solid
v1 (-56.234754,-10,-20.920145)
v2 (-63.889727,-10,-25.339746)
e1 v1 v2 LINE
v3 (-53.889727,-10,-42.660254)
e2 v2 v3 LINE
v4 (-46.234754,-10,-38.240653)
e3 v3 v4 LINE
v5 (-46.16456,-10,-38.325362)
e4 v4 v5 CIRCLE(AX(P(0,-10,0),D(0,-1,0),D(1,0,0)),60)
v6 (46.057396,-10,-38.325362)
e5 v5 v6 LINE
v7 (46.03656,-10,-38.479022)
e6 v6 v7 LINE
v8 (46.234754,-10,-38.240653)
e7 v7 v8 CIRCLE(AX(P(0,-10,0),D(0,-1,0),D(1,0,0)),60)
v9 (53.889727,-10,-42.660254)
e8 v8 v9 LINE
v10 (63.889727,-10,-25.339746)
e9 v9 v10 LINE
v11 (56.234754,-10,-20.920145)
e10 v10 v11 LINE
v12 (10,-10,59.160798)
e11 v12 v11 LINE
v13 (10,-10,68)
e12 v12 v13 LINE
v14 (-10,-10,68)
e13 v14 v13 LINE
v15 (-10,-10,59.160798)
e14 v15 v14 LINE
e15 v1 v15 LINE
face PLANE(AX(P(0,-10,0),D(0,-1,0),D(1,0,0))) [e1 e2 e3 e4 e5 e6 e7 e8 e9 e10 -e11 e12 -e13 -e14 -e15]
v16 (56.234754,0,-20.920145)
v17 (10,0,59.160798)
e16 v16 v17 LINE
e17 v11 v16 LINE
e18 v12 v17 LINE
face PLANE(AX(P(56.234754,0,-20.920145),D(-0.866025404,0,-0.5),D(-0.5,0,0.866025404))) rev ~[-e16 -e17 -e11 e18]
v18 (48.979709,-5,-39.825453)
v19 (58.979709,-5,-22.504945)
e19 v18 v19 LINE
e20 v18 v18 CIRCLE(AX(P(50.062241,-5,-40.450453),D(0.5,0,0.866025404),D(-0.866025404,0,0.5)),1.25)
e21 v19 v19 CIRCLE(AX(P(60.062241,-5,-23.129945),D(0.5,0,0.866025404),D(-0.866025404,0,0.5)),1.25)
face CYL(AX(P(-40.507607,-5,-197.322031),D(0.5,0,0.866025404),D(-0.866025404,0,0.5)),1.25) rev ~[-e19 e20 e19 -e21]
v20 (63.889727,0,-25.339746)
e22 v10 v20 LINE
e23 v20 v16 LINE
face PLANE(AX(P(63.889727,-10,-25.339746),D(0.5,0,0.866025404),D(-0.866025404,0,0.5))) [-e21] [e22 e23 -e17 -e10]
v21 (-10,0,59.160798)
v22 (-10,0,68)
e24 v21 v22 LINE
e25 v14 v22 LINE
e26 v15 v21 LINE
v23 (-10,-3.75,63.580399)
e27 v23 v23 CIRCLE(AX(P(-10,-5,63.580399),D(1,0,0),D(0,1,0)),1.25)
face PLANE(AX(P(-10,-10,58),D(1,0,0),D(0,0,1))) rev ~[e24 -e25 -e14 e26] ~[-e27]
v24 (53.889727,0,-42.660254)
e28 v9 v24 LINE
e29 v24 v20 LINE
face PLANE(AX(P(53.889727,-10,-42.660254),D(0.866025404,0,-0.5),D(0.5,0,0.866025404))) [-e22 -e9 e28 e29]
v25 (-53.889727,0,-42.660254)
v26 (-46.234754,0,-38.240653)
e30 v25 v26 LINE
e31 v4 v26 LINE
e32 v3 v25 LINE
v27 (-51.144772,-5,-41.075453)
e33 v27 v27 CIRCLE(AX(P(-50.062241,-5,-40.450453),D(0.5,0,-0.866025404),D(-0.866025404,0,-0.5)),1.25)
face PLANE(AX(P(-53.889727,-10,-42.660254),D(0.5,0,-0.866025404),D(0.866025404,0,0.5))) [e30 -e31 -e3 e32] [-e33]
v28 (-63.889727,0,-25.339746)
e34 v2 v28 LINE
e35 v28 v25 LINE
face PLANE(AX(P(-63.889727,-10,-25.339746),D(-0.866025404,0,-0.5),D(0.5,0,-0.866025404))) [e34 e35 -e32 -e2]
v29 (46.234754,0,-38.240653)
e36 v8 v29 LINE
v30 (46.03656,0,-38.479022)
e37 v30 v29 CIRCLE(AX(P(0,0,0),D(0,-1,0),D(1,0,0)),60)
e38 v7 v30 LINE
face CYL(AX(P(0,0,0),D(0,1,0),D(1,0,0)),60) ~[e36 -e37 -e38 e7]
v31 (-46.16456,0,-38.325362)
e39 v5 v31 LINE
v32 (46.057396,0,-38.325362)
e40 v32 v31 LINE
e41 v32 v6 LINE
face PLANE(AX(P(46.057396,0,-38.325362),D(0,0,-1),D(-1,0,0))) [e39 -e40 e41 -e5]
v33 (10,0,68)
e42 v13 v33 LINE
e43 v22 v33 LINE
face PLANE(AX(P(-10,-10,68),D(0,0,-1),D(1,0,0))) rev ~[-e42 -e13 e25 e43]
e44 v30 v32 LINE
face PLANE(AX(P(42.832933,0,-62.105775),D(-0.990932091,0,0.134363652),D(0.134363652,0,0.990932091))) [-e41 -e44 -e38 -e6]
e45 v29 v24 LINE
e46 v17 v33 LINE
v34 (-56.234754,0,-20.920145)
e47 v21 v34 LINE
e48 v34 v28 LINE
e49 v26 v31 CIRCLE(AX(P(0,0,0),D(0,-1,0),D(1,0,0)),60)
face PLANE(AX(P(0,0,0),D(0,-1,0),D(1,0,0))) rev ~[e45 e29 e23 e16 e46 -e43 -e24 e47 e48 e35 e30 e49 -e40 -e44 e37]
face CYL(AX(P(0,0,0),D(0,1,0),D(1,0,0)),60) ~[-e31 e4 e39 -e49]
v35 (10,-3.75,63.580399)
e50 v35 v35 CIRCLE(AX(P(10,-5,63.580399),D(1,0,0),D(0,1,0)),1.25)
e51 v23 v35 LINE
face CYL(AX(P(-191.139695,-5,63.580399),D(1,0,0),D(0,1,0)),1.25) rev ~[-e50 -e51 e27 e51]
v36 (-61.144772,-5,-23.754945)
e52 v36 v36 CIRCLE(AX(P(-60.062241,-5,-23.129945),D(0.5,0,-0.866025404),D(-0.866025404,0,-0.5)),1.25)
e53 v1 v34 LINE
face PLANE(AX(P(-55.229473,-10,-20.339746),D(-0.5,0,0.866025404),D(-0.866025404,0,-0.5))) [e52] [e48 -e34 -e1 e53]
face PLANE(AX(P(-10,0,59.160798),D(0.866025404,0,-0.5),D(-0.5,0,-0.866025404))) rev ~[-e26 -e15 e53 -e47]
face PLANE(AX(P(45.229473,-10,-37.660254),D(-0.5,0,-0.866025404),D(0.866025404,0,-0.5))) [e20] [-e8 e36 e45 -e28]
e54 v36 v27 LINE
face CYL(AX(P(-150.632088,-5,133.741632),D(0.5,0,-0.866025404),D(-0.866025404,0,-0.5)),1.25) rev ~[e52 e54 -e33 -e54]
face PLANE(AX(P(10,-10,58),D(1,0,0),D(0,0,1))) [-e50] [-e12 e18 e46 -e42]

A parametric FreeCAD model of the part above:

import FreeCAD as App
import Part
import Sketcher
Q = App.Units.Quantity

doc = App.newDocument("Part")
body = doc.addObject("PartDesign::Body", "Body")

# Sketch on XZ plane
sketch1 = body.newObject("Sketcher::SketchObject", "Sketch")
sketch1.AttachmentSupport = (doc.getObject("XZ_Plane"), [""])
sketch1.MapMode = "FlatFace"
sketch1.addGeometry(Part.Circle(App.Vector(0, 0, 0), App.Vector(0, 0, 1), 60), False)
sketch1.addConstraint([
    Sketcher.Constraint("Coincident", 0, 3, -1, 1),
    Sketcher.Constraint("Diameter", 0, Q("120 mm")),
])
pad1 = body.newObject("PartDesign::Pad", "Pad")
pad1.Profile = sketch1
pad1.Length = 10

# Sketch on XZ plane
sketch2 = body.newObject("Sketcher::SketchObject", "Sketch001")
sketch2.AttachmentSupport = (doc.getObject("XZ_Plane"), [""])
sketch2.MapMode = "FlatFace"
sketch2.AttachmentOffset = App.Placement(App.Vector(0, 0, 10), App.Rotation())
sketch2.addGeometry([
    Part.LineSegment(App.Vector(-10, 68, 0), App.Vector(-10, 58, 0)),  # 0
    Part.LineSegment(App.Vector(-10, 58, 0), App.Vector(10, 58, 0)),  # 1
    Part.LineSegment(App.Vector(10, 58, 0), App.Vector(10, 68, 0)),  # 2
    Part.LineSegment(App.Vector(10, 68, 0), App.Vector(-10, 68, 0)),  # 3
    Part.LineSegment(App.Vector(-54, -43, 0), App.Vector(-45, -38, 0)),  # 4
    Part.LineSegment(App.Vector(-45, -38, 0), App.Vector(-55, -20, 0)),  # 5
    Part.LineSegment(App.Vector(-55, -20, 0), App.Vector(-64, -25, 0)),  # 6
    Part.LineSegment(App.Vector(-64, -25, 0), App.Vector(-54, -43, 0)),  # 7
    Part.LineSegment(App.Vector(64, -25, 0), App.Vector(55, -20, 0)),  # 8
    Part.LineSegment(App.Vector(55, -20, 0), App.Vector(45, -38, 0)),  # 9
    Part.LineSegment(App.Vector(45, -38, 0), App.Vector(54, -43, 0)),  # 10
    Part.LineSegment(App.Vector(54, -43, 0), App.Vector(64, -25, 0)),  # 11
], False)
sketch2.addConstraint([
    Sketcher.Constraint("Coincident", 0, 2, 1, 1),
    Sketcher.Constraint("Coincident", 1, 2, 2, 1),
    Sketcher.Constraint("Coincident", 2, 2, 3, 1),
    Sketcher.Constraint("Coincident", 3, 2, 0, 1),
    Sketcher.Constraint("Coincident", 4, 2, 5, 1),
    Sketcher.Constraint("Coincident", 5, 2, 6, 1),
    Sketcher.Constraint("Coincident", 6, 2, 7, 1),
    Sketcher.Constraint("Coincident", 7, 2, 4, 1),
    Sketcher.Constraint("Coincident", 8, 2, 9, 1),
    Sketcher.Constraint("Coincident", 9, 2, 10, 1),
    Sketcher.Constraint("Coincident", 10, 2, 11, 1),
    Sketcher.Constraint("Coincident", 11, 2, 8, 1),
    Sketcher.Constraint("Vertical", 0),
    Sketcher.Constraint("Horizontal", 1),
    Sketcher.Constraint("Vertical", 2),
    Sketcher.Constraint("Horizontal", 3),
    Sketcher.Constraint("Symmetric", 5, 2, 8, 2, -2),
    Sketcher.Constraint("Symmetric", 4, 2, 9, 2, -2),
    Sketcher.Constraint("Symmetric", 7, 2, 10, 2, -2),
    Sketcher.Constraint("Symmetric", 6, 2, 11, 2, -2),
    Sketcher.Constraint("Perpendicular", 4, 5),
    Sketcher.Constraint("Perpendicular", 5, 6),
    Sketcher.Constraint("Perpendicular", 6, 7),
    Sketcher.Constraint("DistanceX", 1, 1, 1, 2, Q("20 mm")),
    Sketcher.Constraint("DistanceY", 0, 2, 0, 1, Q("10 mm")),
    Sketcher.Constraint("Angle", 4, Q("30 deg")),
    Sketcher.Constraint("Distance", 4, Q("10 mm")),
    Sketcher.Constraint("Distance", 5, Q("20 mm")),
    Sketcher.Constraint("DistanceX", 0, 2, -1, 1, Q("10 mm")),
    Sketcher.Constraint("DistanceY", -1, 1, 0, 2, Q("58 mm")),
    Sketcher.Constraint("DistanceX", 7, 2, 9, 2, Q("99.119201 mm")),
    Sketcher.Constraint("DistanceY", 4, 2, -1, 1, Q("37.660254 mm")),
])
pad2 = body.newObject("PartDesign::Pad", "Pad001")
pad2.Profile = sketch2
pad2.Length = 10
pad2.Reversed = True

# Sketch on YZ plane
sketch3 = body.newObject("Sketcher::SketchObject", "Sketch002")
sketch3.AttachmentSupport = (doc.getObject("YZ_Plane"), [""])
sketch3.MapMode = "FlatFace"
sketch3.AttachmentOffset = App.Placement(App.Vector(0, 0, -10), App.Rotation())
sketch3.addGeometry(Part.Circle(App.Vector(-5, 63.6, 0), App.Vector(0, 0, 1), 1.2), False)
sketch3.addConstraint([
    Sketcher.Constraint("Diameter", 0, Q("2.5 mm")),
    Sketcher.Constraint("DistanceX", 0, 3, -1, 1, Q("5 mm")),
    Sketcher.Constraint("DistanceY", -1, 1, 0, 3, Q("63.580399 mm")),
])
doc.recompute()
hole = body.newObject("PartDesign::Hole", "Hole")
hole.Profile = sketch3
hole.ThreadType = "None"
hole.Diameter = 2.5
hole.DepthType = "ThroughAll"
hole.Reversed = True

# Sketch on an angled plane
sketch4 = body.newObject("Sketcher::SketchObject", "Sketch003")
sketch4.Placement = App.Placement(App.Vector(-5, 0, 8.660254), App.Rotation(App.Vector(0.866025404, 0, 0.5), App.Vector(0, 1, 0), App.Vector(-0.5, 0, 0.866025404), "ZXY"))
sketch4.addGeometry(Part.Circle(App.Vector(-63.6, -5, 0), App.Vector(0, 0, 1), 1.2), False)
sketch4.addConstraint([
    Sketcher.Constraint("Diameter", 0, Q("2.5 mm")),
    Sketcher.Constraint("DistanceY", 0, 3, -1, 1, Q("5 mm")),
    Sketcher.Constraint("DistanceX", 0, 3, -1, 1, Q("63.580399 mm")),
])
doc.recompute()
hole2 = body.newObject("PartDesign::Hole", "Hole001")
hole2.Profile = sketch4
hole2.ThreadType = "None"
hole2.Diameter = 2.5
hole2.DepthType = "ThroughAll"

# Sketch on an angled plane
sketch5 = body.newObject("Sketcher::SketchObject", "Sketch004")
sketch5.Placement = App.Placement(App.Vector(-5, 0, -8.660254), App.Rotation(App.Vector(0.866025404, 0, -0.5), App.Vector(0, -1, 0), App.Vector(-0.5, 0, -0.866025404), "ZXY"))
sketch5.addGeometry(Part.Circle(App.Vector(63.6, 5, 0), App.Vector(0, 0, 1), 1.2), False)
sketch5.addConstraint([
    Sketcher.Constraint("Diameter", 0, Q("2.5 mm")),
    Sketcher.Constraint("DistanceY", -1, 1, 0, 3, Q("5 mm")),
    Sketcher.Constraint("DistanceX", -1, 1, 0, 3, Q("63.580399 mm")),
])
doc.recompute()
hole3 = body.newObject("PartDesign::Hole", "Hole002")
hole3.Profile = sketch5
hole3.ThreadType = "None"
hole3.Diameter = 2.5
hole3.DepthType = "ThroughAll"

# Sketch on XZ plane
sketch6 = body.newObject("Sketcher::SketchObject", "Sketch005")
sketch6.AttachmentSupport = (doc.getObject("XZ_Plane"), [""])
sketch6.MapMode = "FlatFace"
sketch6.addGeometry([
    Part.LineSegment(App.Vector(46, -38, 0), App.Vector(-46, -38, 0)),
    Part.LineSegment(App.Vector(-46, -38, 0), App.Vector(-48, -60, 0)),
    Part.LineSegment(App.Vector(-48, -60, 0), App.Vector(43, -62, 0)),
    Part.LineSegment(App.Vector(43, -62, 0), App.Vector(46, -38, 0)),
], False)
sketch6.addConstraint([
    Sketcher.Constraint("Coincident", 0, 2, 1, 1),
    Sketcher.Constraint("Coincident", 1, 2, 2, 1),
    Sketcher.Constraint("Coincident", 2, 2, 3, 1),
    Sketcher.Constraint("Coincident", 3, 2, 0, 1),
    Sketcher.Constraint("Horizontal", 0),
    Sketcher.Constraint("DistanceX", 0, 2, 0, 1, Q("92.261501 mm")),
    Sketcher.Constraint("Distance", 2, Q("90.70235 mm")),
    Sketcher.Constraint("DistanceY", 0, 2, -1, 1, Q("38.325362 mm")),
    Sketcher.Constraint("DistanceX", 1, 2, 0, 2, Q("1.650982 mm")),
    Sketcher.Constraint("DistanceY", 1, 2, 0, 2, Q("22.168182 mm")),
    Sketcher.Constraint("DistanceX", 1, 2, 2, 2, Q("90.68802 mm")),
    Sketcher.Constraint("DistanceX", 0, 2, -1, 1, Q("46.204105 mm")),
])
pocket1 = body.newObject("PartDesign::Pocket", "Pocket")
pocket1.Profile = sketch6
pocket1.Type = "ThroughAll"
pocket1.Reversed = True

# Sketch on XZ plane
sketch7 = body.newObject("Sketcher::SketchObject", "Sketch006")
sketch7.AttachmentSupport = (doc.getObject("XZ_Plane"), [""])
sketch7.MapMode = "FlatFace"
sketch7.addGeometry([
    Part.LineSegment(App.Vector(-10, 59, 0), App.Vector(-56, -21, 0)),  # 0
    Part.LineSegment(App.Vector(-56, -21, 0), App.Vector(-84, -10, 0)),  # 1
    Part.LineSegment(App.Vector(-84, -10, 0), App.Vector(-39, 80, 0)),  # 2
    Part.LineSegment(App.Vector(-39, 80, 0), App.Vector(-10, 59, 0)),  # 3
    Part.LineSegment(App.Vector(56, -21, 0), App.Vector(10, 59, 0)),  # 4
    Part.LineSegment(App.Vector(10, 59, 0), App.Vector(43, 72, 0)),  # 5
    Part.LineSegment(App.Vector(43, 72, 0), App.Vector(87, -3, 0)),  # 6
    Part.LineSegment(App.Vector(87, -3, 0), App.Vector(56, -21, 0)),  # 7
], False)
sketch7.addConstraint([
    Sketcher.Constraint("Coincident", 0, 2, 1, 1),
    Sketcher.Constraint("Coincident", 1, 2, 2, 1),
    Sketcher.Constraint("Coincident", 2, 2, 3, 1),
    Sketcher.Constraint("Coincident", 3, 2, 0, 1),
    Sketcher.Constraint("Coincident", 4, 2, 5, 1),
    Sketcher.Constraint("Coincident", 5, 2, 6, 1),
    Sketcher.Constraint("Coincident", 6, 2, 7, 1),
    Sketcher.Constraint("Coincident", 7, 2, 4, 1),
    Sketcher.Constraint("Symmetric", 3, 2, 4, 2, -2),
    Sketcher.Constraint("Symmetric", 0, 2, 7, 2, -2),
    Sketcher.Constraint("Parallel", 4, 6),
    Sketcher.Constraint("Perpendicular", 6, 7),
    Sketcher.Constraint("Angle", 0, Q("-120 deg")),
    Sketcher.Constraint("DistanceX", 3, 2, -1, 1, Q("10 mm")),
    Sketcher.Constraint("Distance", 2, Q("100.7483 mm")),
    Sketcher.Constraint("DistanceX", -1, 1, 6, 2, Q("86.6775 mm")),
    Sketcher.Constraint("DistanceX", 1, 2, -1, 1, Q("84.36019 mm")),
    Sketcher.Constraint("DistanceX", 2, 2, -1, 1, Q("39.304182 mm")),
    Sketcher.Constraint("DistanceY", 0, 2, 1, 2, Q("11.301672 mm")),
    Sketcher.Constraint("DistanceX", 0, 2, 2, 2, Q("16.930572 mm")),
    Sketcher.Constraint("DistanceX", 2, 2, 5, 2, Q("82.64141 mm")),
    Sketcher.Constraint("DistanceY", 0, 2, -1, 1, Q("20.920145 mm")),
])
pocket2 = body.newObject("PartDesign::Pocket", "Pocket001")
pocket2.Profile = sketch7
pocket2.Length = 25
pocket2.Reversed = True

doc.recompute()
